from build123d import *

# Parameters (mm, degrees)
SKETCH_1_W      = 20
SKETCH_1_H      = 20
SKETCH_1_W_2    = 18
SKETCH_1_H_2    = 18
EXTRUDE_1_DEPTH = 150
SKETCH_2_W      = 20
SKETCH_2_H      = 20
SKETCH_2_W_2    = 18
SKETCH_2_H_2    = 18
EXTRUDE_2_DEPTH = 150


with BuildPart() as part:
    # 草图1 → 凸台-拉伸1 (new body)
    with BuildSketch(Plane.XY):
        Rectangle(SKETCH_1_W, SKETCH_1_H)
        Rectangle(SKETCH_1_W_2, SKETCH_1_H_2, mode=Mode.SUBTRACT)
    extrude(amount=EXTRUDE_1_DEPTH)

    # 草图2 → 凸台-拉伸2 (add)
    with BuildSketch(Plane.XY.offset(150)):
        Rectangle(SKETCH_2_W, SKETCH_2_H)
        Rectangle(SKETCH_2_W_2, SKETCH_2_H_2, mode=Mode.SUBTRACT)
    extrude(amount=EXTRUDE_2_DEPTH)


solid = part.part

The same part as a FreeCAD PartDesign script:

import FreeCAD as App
import Part
import Sketcher
from FreeCAD import Vector


def add_polygon(sketch, points):
    """Adds a closed chain of lines whose ends are joined by coincident constraints."""
    first, n = sketch.GeometryCount, len(points)
    for a, b in zip(points, points[1:] + points[:1]):
        sketch.addGeometry(Part.LineSegment(App.Vector(*a, 0), App.Vector(*b, 0)), False)
    for i in range(n):
        sketch.addConstraint(Sketcher.Constraint("Coincident", first + i, 2, first + (i + 1) % n, 1))

doc = App.newDocument("Part")
params = doc.addObject("Spreadsheet::Sheet", "Params")
for row, (alias, value) in enumerate([
    ("sketch1_width", "20 mm"),
    ("sketch1_width2", "18 mm"),
    ("pad1_length", "150 mm"),
    ("sketch2_width", "20 mm"),
    ("sketch2_width2", "18 mm"),
    ("pad2_length", "150 mm"),
], start=1):
    params.set(f"A{row}", alias)
    params.set(f"B{row}", "=" + value)
    params.setAlias(f"B{row}", alias)

body = doc.addObject("PartDesign::Body", "Body")

sketch1 = doc.addObject("Sketcher::SketchObject", "Sketch")
body.addObject(sketch1)
sketch1.AttachmentSupport = (doc.XY_Plane, [""])
sketch1.MapMode = "FlatFace"
add_polygon(sketch1, [(-10, 10), (-10, -10), (10, -10), (10, 10)])
add_polygon(sketch1, [(9, -9), (-9, -9), (-9, 9), (9, 9)])
sketch1.addConstraint([
    Sketcher.Constraint("Vertical", 0),
    Sketcher.Constraint("Horizontal", 1),
    Sketcher.Constraint("Vertical", 2),
    Sketcher.Constraint("Horizontal", 3),
    Sketcher.Constraint("Horizontal", 4),
    Sketcher.Constraint("Vertical", 5),
    Sketcher.Constraint("Horizontal", 6),
    Sketcher.Constraint("Vertical", 7),
    Sketcher.Constraint("Symmetric", 0, 2, 2, 2, -1, 1),
    Sketcher.Constraint("Symmetric", 4, 2, 6, 2, -1, 1),
    Sketcher.Constraint("Equal", 3, 0),
    Sketcher.Constraint("Equal", 6, 5),
    Sketcher.Constraint("DistanceX", 1, 1, 1, 2, 20.0),
    Sketcher.Constraint("DistanceX", 4, 2, 4, 1, 18.0),
])
sketch1.setExpression("Constraints[20]", "Params.sketch1_width")
sketch1.setExpression("Constraints[21]", "Params.sketch1_width2")
pad1 = doc.addObject("PartDesign::Pad", "Pad")
body.addObject(pad1)
pad1.Profile = sketch1
pad1.setExpression("Length", "Params.pad1_length")

sketch2 = doc.addObject("Sketcher::SketchObject", "Sketch001")
body.addObject(sketch2)
sketch2.AttachmentSupport = (doc.XY_Plane, [""])
sketch2.MapMode = "FlatFace"
sketch2.AttachmentOffset = App.Placement(Vector(0, 0, 150), App.Rotation())
add_polygon(sketch2, [(-10, 10), (-10, -10), (10, -10), (10, 10)])
add_polygon(sketch2, [(9, -9), (-9, -9), (-9, 9), (9, 9)])
sketch2.addConstraint([
    Sketcher.Constraint("Vertical", 0),
    Sketcher.Constraint("Horizontal", 1),
    Sketcher.Constraint("Vertical", 2),
    Sketcher.Constraint("Horizontal", 3),
    Sketcher.Constraint("Horizontal", 4),
    Sketcher.Constraint("Vertical", 5),
    Sketcher.Constraint("Horizontal", 6),
    Sketcher.Constraint("Vertical", 7),
    Sketcher.Constraint("Symmetric", 0, 2, 2, 2, -1, 1),
    Sketcher.Constraint("Symmetric", 4, 2, 6, 2, -1, 1),
    Sketcher.Constraint("Equal", 3, 0),
    Sketcher.Constraint("Equal", 6, 5),
    Sketcher.Constraint("DistanceX", 1, 1, 1, 2, 20.0),
    Sketcher.Constraint("DistanceX", 4, 2, 4, 1, 18.0),
])
sketch2.setExpression("Constraints[20]", "Params.sketch2_width")
sketch2.setExpression("Constraints[21]", "Params.sketch2_width2")
pad2 = doc.addObject("PartDesign::Pad", "Pad001")
body.addObject(pad2)
pad2.Profile = sketch2
pad2.setExpression("Length", "Params.pad2_length")

doc.recompute()
